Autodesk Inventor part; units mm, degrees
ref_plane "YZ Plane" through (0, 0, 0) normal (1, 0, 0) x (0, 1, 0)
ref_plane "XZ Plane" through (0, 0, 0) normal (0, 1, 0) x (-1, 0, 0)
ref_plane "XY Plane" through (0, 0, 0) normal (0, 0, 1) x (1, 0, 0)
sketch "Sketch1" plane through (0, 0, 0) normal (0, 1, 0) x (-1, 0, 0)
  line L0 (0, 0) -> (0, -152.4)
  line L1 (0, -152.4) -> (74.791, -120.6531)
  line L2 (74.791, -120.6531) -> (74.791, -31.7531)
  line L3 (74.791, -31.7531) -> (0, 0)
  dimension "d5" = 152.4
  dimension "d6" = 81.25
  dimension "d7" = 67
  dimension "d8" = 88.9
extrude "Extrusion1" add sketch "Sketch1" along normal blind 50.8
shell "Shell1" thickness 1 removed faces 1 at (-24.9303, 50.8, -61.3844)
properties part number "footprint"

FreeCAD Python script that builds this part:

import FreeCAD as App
import Part
import Sketcher
Q = App.Units.Quantity


def faces_at(feature, points):
    """Names of the faces that lie closest to the given points."""
    faces = feature.Shape.Faces
    near = lambda p: min(range(len(faces)), key=lambda i: faces[i].distToShape(Part.Vertex(*p))[0])
    return sorted({f"Face{near(p) + 1}" for p in points})

doc = App.newDocument("Part")
body = doc.addObject("PartDesign::Body", "Body")

sketch1 = body.newObject("Sketcher::SketchObject", "Sketch")
sketch1.AttachmentSupport = (doc.getObject("XZ_Plane"), [""])
sketch1.MapMode = "FlatFace"
sketch1.addGeometry([
    Part.LineSegment(App.Vector(-75, -32, 0), App.Vector(0, 0, 0)),
    Part.LineSegment(App.Vector(0, 0, 0), App.Vector(0, -152, 0)),
    Part.LineSegment(App.Vector(0, -152, 0), App.Vector(-75, -121, 0)),
    Part.LineSegment(App.Vector(-75, -121, 0), App.Vector(-75, -32, 0)),
], False)
sketch1.addConstraint([
    Sketcher.Constraint("Coincident", 0, 2, 1, 1),
    Sketcher.Constraint("Coincident", 1, 2, 2, 1),
    Sketcher.Constraint("Coincident", 2, 2, 3, 1),
    Sketcher.Constraint("Coincident", 3, 2, 0, 1),
    Sketcher.Constraint("Vertical", 1),
    Sketcher.Constraint("Vertical", 3),
    Sketcher.Constraint("Coincident", 0, 2, -1, 1),
    Sketcher.Constraint("DistanceY", 1, 2, 1, 1, Q("6 in")),
    Sketcher.Constraint("DistanceY", 3, 1, 3, 2, Q("3.5 in")),
    Sketcher.Constraint("Angle", 2, Q("157 deg")),
    Sketcher.Constraint("Distance", 2, Q("81.25 mm")),
])
pad1 = body.newObject("PartDesign::Pad", "Pad")
pad1.Profile = sketch1
pad1.Length = Q("2 in")
pad1.Reversed = True
doc.recompute()

thickness = body.newObject("PartDesign::Thickness", "Thickness")
thickness.Base = (pad1, faces_at(pad1, [(-24.93, 50.8, -61.384)]))
thickness.Value = 1
thickness.Reversed = True
thickness.Join = "Intersection"

doc.recompute()
